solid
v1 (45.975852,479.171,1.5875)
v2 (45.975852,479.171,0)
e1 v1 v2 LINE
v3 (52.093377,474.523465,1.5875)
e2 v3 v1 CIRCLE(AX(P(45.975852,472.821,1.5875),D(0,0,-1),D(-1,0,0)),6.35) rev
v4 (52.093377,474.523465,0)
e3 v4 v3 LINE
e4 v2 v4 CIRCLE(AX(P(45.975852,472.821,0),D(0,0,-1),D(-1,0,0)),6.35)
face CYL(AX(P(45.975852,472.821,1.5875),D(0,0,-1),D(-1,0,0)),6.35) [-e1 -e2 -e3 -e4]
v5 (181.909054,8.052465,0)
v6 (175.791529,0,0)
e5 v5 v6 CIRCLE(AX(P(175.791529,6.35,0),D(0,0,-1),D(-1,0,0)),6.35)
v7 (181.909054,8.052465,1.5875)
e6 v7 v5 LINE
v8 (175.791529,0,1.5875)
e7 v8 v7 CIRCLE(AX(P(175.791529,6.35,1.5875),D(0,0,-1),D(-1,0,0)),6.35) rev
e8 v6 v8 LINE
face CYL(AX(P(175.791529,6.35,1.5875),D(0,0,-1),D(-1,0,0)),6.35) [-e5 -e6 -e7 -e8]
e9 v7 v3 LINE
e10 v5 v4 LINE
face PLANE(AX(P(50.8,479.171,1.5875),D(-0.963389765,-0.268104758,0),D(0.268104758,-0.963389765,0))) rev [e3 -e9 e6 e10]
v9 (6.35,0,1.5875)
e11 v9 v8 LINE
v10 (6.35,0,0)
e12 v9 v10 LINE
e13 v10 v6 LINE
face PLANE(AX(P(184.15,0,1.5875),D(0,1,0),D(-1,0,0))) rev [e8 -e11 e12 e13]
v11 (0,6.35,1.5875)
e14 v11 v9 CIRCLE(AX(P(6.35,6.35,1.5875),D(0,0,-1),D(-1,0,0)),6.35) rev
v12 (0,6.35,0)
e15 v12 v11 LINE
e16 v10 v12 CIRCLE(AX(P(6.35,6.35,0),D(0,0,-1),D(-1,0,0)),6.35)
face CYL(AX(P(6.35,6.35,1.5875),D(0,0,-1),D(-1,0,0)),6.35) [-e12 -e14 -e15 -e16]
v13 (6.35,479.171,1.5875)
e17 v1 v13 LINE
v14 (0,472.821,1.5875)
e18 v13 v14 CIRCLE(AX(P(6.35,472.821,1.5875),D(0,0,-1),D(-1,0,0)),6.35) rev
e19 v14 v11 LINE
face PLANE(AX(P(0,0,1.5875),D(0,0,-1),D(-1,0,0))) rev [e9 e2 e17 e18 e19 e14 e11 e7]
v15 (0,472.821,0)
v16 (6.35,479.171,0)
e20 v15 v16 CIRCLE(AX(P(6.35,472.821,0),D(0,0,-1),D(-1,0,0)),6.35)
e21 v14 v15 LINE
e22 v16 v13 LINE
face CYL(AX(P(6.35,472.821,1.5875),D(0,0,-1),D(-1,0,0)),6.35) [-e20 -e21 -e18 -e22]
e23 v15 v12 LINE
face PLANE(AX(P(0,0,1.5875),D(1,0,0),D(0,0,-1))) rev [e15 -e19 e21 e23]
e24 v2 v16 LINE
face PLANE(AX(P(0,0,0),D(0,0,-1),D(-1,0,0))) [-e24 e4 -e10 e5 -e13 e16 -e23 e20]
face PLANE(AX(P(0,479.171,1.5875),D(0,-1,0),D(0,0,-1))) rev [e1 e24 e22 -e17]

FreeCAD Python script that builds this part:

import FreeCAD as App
import Part
import Sketcher

V = App.Vector
Q = App.Units.Quantity


def edges_at(feature, points):
    """Names of the edges that pass closest to the given points."""
    edges = feature.Shape.Edges
    near = lambda p: min(range(len(edges)), key=lambda i: edges[i].distToShape(Part.Vertex(*p))[0])
    return sorted({f"Edge{near(p) + 1}" for p in points})

doc = App.newDocument("Part")
params = doc.addObject("Spreadsheet::Sheet", "Params")
for row, (alias, value) in enumerate([
    ("sketch1_width", "2 in"),
    ("sketch1_width2", "7.25 in"),
    ("sketch1_height", "18.865 in"),
    ("pad1_length", "0.0625 in"),
    ("fillet_radius", "0.25 in"),
], start=1):
    params.set(f"A{row}", alias)
    params.set(f"B{row}", "=" + value)
    params.setAlias(f"B{row}", alias)

body = doc.addObject("PartDesign::Body", "Body")

sketch1 = body.newObject("Sketcher::SketchObject", "Sketch")
sketch1.AttachmentSupport = (doc.getObject("XY_Plane"), [""])
sketch1.MapMode = "FlatFace"
sketch1.addGeometry([
    Part.LineSegment(V(0, 479.171, 0), V(0, 0, 0)),
    Part.LineSegment(V(0, 0, 0), V(184.15, 0, 0)),
    Part.LineSegment(V(184.15, 0, 0), V(50.8, 479.171, 0)),
    Part.LineSegment(V(50.8, 479.171, 0), V(0, 479.171, 0)),
], False)
sketch1.addConstraint([
    Sketcher.Constraint("Coincident", 0, 2, 1, 1),
    Sketcher.Constraint("Coincident", 1, 2, 2, 1),
    Sketcher.Constraint("Coincident", 2, 2, 3, 1),
    Sketcher.Constraint("Coincident", 3, 2, 0, 1),
    Sketcher.Constraint("Vertical", 0),
    Sketcher.Constraint("Horizontal", 1),
    Sketcher.Constraint("Horizontal", 3),
    Sketcher.Constraint("Coincident", 0, 2, -1, 1),
    Sketcher.Constraint("DistanceX", 3, 2, 3, 1, Q("2 in")),
    Sketcher.Constraint("DistanceX", 1, 1, 1, 2, Q("7.25 in")),
    Sketcher.Constraint("DistanceY", 0, 2, 0, 1, Q("18.865 in")),
])
sketch1.setExpression("Constraints[8]", "Params.sketch1_width")
sketch1.setExpression("Constraints[9]", "Params.sketch1_width2")
sketch1.setExpression("Constraints[10]", "Params.sketch1_height")
pad1 = body.newObject("PartDesign::Pad", "Pad")
pad1.Profile = sketch1
pad1.setExpression("Length", "Params.pad1_length")
doc.recompute()

fillet = body.newObject("PartDesign::Fillet", "Fillet")
fillet.Base = (pad1, edges_at(pad1, [
    (0, 0, 0.794),
    (0, 479.171, 0.794),
    (50.8, 479.171, 0.794),
    (184.15, 0, 0.794),
]))
fillet.setExpression("Radius", "Params.fillet_radius")

doc.recompute()
